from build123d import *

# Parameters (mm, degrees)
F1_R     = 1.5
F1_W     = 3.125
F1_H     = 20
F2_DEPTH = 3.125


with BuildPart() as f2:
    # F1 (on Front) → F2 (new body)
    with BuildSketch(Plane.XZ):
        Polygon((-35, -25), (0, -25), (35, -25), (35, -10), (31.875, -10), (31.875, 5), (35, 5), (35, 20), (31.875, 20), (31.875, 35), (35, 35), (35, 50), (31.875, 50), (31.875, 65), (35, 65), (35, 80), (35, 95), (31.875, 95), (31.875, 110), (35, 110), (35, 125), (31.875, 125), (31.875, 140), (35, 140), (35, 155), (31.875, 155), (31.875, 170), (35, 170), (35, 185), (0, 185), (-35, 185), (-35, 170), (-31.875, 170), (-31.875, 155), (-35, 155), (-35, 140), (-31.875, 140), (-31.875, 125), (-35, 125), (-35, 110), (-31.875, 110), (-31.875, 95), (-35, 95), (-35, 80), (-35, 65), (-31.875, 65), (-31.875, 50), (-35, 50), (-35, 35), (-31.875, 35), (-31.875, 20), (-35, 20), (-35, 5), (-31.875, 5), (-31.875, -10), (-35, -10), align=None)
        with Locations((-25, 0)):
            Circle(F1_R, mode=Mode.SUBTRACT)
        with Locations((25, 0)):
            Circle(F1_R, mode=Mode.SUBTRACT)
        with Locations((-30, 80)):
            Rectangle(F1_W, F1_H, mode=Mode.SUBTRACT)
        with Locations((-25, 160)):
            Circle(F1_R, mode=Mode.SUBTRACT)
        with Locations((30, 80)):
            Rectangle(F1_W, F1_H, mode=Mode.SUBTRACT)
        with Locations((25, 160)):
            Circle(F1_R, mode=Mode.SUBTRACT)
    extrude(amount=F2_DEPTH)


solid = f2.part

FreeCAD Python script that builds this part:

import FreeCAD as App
import Part
import Sketcher
from FreeCAD import Vector
Q = App.Units.Quantity

doc = App.newDocument("Part")
body = doc.addObject("PartDesign::Body", "Body")

# Sketch on XZ plane
sketch1 = body.newObject("Sketcher::SketchObject", "Sketch")
sketch1.AttachmentSupport = (doc.getObject("XZ_Plane"), [""])
sketch1.MapMode = "FlatFace"
sketch1.addGeometry(Part.LineSegment(Vector(-35, -25, 0), Vector(35, -25, 0)), False)
sketch1.addGeometry(Part.LineSegment(Vector(35, -25, 0), Vector(35, -10, 0)), False)
sketch1.addGeometry(Part.LineSegment(Vector(35, -10, 0), Vector(31.9, -10, 0)), False)
sketch1.addGeometry(Part.LineSegment(Vector(31.9, -10, 0), Vector(31.9, 5, 0)), False)
sketch1.addGeometry(Part.LineSegment(Vector(31.9, 5, 0), Vector(35, 5, 0)), False)
sketch1.addGeometry(Part.LineSegment(Vector(35, 5, 0), Vector(35, 20, 0)), False)
sketch1.addGeometry(Part.LineSegment(Vector(35, 20, 0), Vector(31.9, 20, 0)), False)
sketch1.addGeometry(Part.LineSegment(Vector(31.9, 20, 0), Vector(31.9, 35, 0)), False)
sketch1.addGeometry(Part.LineSegment(Vector(31.9, 35, 0), Vector(35, 35, 0)), False)
sketch1.addGeometry(Part.LineSegment(Vector(35, 35, 0), Vector(35, 50, 0)), False)
sketch1.addGeometry(Part.LineSegment(Vector(35, 50, 0), Vector(31.9, 50, 0)), False)
sketch1.addGeometry(Part.LineSegment(Vector(31.9, 50, 0), Vector(31.9, 65, 0)), False)
sketch1.addGeometry(Part.LineSegment(Vector(31.9, 65, 0), Vector(35, 65, 0)), False)
sketch1.addGeometry(Part.LineSegment(Vector(35, 65, 0), Vector(35, 95, 0)), False)
sketch1.addGeometry(Part.LineSegment(Vector(35, 95, 0), Vector(31.9, 95, 0)), False)
sketch1.addGeometry(Part.LineSegment(Vector(31.9, 95, 0), Vector(31.9, 110, 0)), False)
sketch1.addGeometry(Part.LineSegment(Vector(31.9, 110, 0), Vector(35, 110, 0)), False)
sketch1.addGeometry(Part.LineSegment(Vector(35, 110, 0), Vector(35, 125, 0)), False)
sketch1.addGeometry(Part.LineSegment(Vector(35, 125, 0), Vector(31.9, 125, 0)), False)
sketch1.addGeometry(Part.LineSegment(Vector(31.9, 125, 0), Vector(31.9, 140, 0)), False)
sketch1.addGeometry(Part.LineSegment(Vector(31.9, 140, 0), Vector(35, 140, 0)), False)
sketch1.addGeometry(Part.LineSegment(Vector(35, 140, 0), Vector(35, 155, 0)), False)
sketch1.addGeometry(Part.LineSegment(Vector(35, 155, 0), Vector(31.9, 155, 0)), False)
sketch1.addGeometry(Part.LineSegment(Vector(31.9, 155, 0), Vector(31.9, 170, 0)), False)
sketch1.addGeometry(Part.LineSegment(Vector(31.9, 170, 0), Vector(35, 170, 0)), False)
sketch1.addGeometry(Part.LineSegment(Vector(35, 170, 0), Vector(35, 185, 0)), False)
sketch1.addGeometry(Part.LineSegment(Vector(35, 185, 0), Vector(-35, 185, 0)), False)
sketch1.addGeometry(Part.LineSegment(Vector(-35, 185, 0), Vector(-35, 170, 0)), False)
sketch1.addGeometry(Part.LineSegment(Vector(-35, 170, 0), Vector(-31.9, 170, 0)), False)
sketch1.addGeometry(Part.LineSegment(Vector(-31.9, 170, 0), Vector(-31.9, 155, 0)), False)
sketch1.addGeometry(Part.LineSegment(Vector(-31.9, 155, 0), Vector(-35, 155, 0)), False)
sketch1.addGeometry(Part.LineSegment(Vector(-35, 155, 0), Vector(-35, 140, 0)), False)
sketch1.addGeometry(Part.LineSegment(Vector(-35, 140, 0), Vector(-31.9, 140, 0)), False)
sketch1.addGeometry(Part.LineSegment(Vector(-31.9, 140, 0), Vector(-31.9, 125, 0)), False)
sketch1.addGeometry(Part.LineSegment(Vector(-31.9, 125, 0), Vector(-35, 125, 0)), False)
sketch1.addGeometry(Part.LineSegment(Vector(-35, 125, 0), Vector(-35, 110, 0)), False)
sketch1.addGeometry(Part.LineSegment(Vector(-35, 110, 0), Vector(-31.9, 110, 0)), False)
sketch1.addGeometry(Part.LineSegment(Vector(-31.9, 110, 0), Vector(-31.9, 95, 0)), False)
sketch1.addGeometry(Part.LineSegment(Vector(-31.9, 95, 0), Vector(-35, 95, 0)), False)
sketch1.addGeometry(Part.LineSegment(Vector(-35, 95, 0), Vector(-35, 65, 0)), False)
sketch1.addGeometry(Part.LineSegment(Vector(-35, 65, 0), Vector(-31.9, 65, 0)), False)
sketch1.addGeometry(Part.LineSegment(Vector(-31.9, 65, 0), Vector(-31.9, 50, 0)), False)
sketch1.addGeometry(Part.LineSegment(Vector(-31.9, 50, 0), Vector(-35, 50, 0)), False)
sketch1.addGeometry(Part.LineSegment(Vector(-35, 50, 0), Vector(-35, 35, 0)), False)
sketch1.addGeometry(Part.LineSegment(Vector(-35, 35, 0), Vector(-31.9, 35, 0)), False)
sketch1.addGeometry(Part.LineSegment(Vector(-31.9, 35, 0), Vector(-31.9, 20, 0)), False)
sketch1.addGeometry(Part.LineSegment(Vector(-31.9, 20, 0), Vector(-35, 20, 0)), False)
sketch1.addGeometry(Part.LineSegment(Vector(-35, 20, 0), Vector(-35, 5, 0)), False)
sketch1.addGeometry(Part.LineSegment(Vector(-35, 5, 0), Vector(-31.9, 5, 0)), False)
sketch1.addGeometry(Part.LineSegment(Vector(-31.9, 5, 0), Vector(-31.9, -10, 0)), False)
sketch1.addGeometry(Part.LineSegment(Vector(-31.9, -10, 0), Vector(-35, -10, 0)), False)
sketch1.addGeometry(Part.LineSegment(Vector(-35, -10, 0), Vector(-35, -25, 0)), False)
sketch1.addGeometry(Part.Circle(Vector(-25, 0, 0), Vector(0, 0, 1), 1.5), False)
sketch1.addGeometry(Part.Circle(Vector(25, 0, 0), Vector(0, 0, 1), 1.5), False)
sketch1.addGeometry(Part.LineSegment(Vector(-28.4, 70, 0), Vector(-31.6, 70, 0)), False)
sketch1.addGeometry(Part.LineSegment(Vector(-31.6, 70, 0), Vector(-31.6, 90, 0)), False)
sketch1.addGeometry(Part.LineSegment(Vector(-31.6, 90, 0), Vector(-28.4, 90, 0)), False)
sketch1.addGeometry(Part.LineSegment(Vector(-28.4, 90, 0), Vector(-28.4, 70, 0)), False)
sketch1.addGeometry(Part.Circle(Vector(-25, 160, 0), Vector(0, 0, 1), 1.5), False)
sketch1.addGeometry(Part.LineSegment(Vector(31.6, 70, 0), Vector(28.4, 70, 0)), False)
sketch1.addGeometry(Part.LineSegment(Vector(28.4, 70, 0), Vector(28.4, 90, 0)), False)
sketch1.addGeometry(Part.LineSegment(Vector(28.4, 90, 0), Vector(31.6, 90, 0)), False)
sketch1.addGeometry(Part.LineSegment(Vector(31.6, 90, 0), Vector(31.6, 70, 0)), False)
sketch1.addGeometry(Part.Circle(Vector(25, 160, 0), Vector(0, 0, 1), 1.5), False)
sketch1.addConstraint(Sketcher.Constraint("Coincident", 0, 2, 1, 1))
sketch1.addConstraint(Sketcher.Constraint("Coincident", 1, 2, 2, 1))
sketch1.addConstraint(Sketcher.Constraint("Coincident", 2, 2, 3, 1))
sketch1.addConstraint(Sketcher.Constraint("Coincident", 3, 2, 4, 1))
sketch1.addConstraint(Sketcher.Constraint("Coincident", 4, 2, 5, 1))
sketch1.addConstraint(Sketcher.Constraint("Coincident", 5, 2, 6, 1))
sketch1.addConstraint(Sketcher.Constraint("Coincident", 6, 2, 7, 1))
sketch1.addConstraint(Sketcher.Constraint("Coincident", 7, 2, 8, 1))
sketch1.addConstraint(Sketcher.Constraint("Coincident", 8, 2, 9, 1))
sketch1.addConstraint(Sketcher.Constraint("Coincident", 9, 2, 10, 1))
sketch1.addConstraint(Sketcher.Constraint("Coincident", 10, 2, 11, 1))
sketch1.addConstraint(Sketcher.Constraint("Coincident", 11, 2, 12, 1))
sketch1.addConstraint(Sketcher.Constraint("Coincident", 12, 2, 13, 1))
sketch1.addConstraint(Sketcher.Constraint("Coincident", 13, 2, 14, 1))
sketch1.addConstraint(Sketcher.Constraint("Coincident", 14, 2, 15, 1))
sketch1.addConstraint(Sketcher.Constraint("Coincident", 15, 2, 16, 1))
sketch1.addConstraint(Sketcher.Constraint("Coincident", 16, 2, 17, 1))
sketch1.addConstraint(Sketcher.Constraint("Coincident", 17, 2, 18, 1))
sketch1.addConstraint(Sketcher.Constraint("Coincident", 18, 2, 19, 1))
sketch1.addConstraint(Sketcher.Constraint("Coincident", 19, 2, 20, 1))
sketch1.addConstraint(Sketcher.Constraint("Coincident", 20, 2, 21, 1))
sketch1.addConstraint(Sketcher.Constraint("Coincident", 21, 2, 22, 1))
sketch1.addConstraint(Sketcher.Constraint("Coincident", 22, 2, 23, 1))
sketch1.addConstraint(Sketcher.Constraint("Coincident", 23, 2, 24, 1))
sketch1.addConstraint(Sketcher.Constraint("Coincident", 24, 2, 25, 1))
sketch1.addConstraint(Sketcher.Constraint("Coincident", 25, 2, 26, 1))
sketch1.addConstraint(Sketcher.Constraint("Coincident", 26, 2, 27, 1))
sketch1.addConstraint(Sketcher.Constraint("Coincident", 27, 2, 28, 1))
sketch1.addConstraint(Sketcher.Constraint("Coincident", 28, 2, 29, 1))
sketch1.addConstraint(Sketcher.Constraint("Coincident", 29, 2, 30, 1))
sketch1.addConstraint(Sketcher.Constraint("Coincident", 30, 2, 31, 1))
sketch1.addConstraint(Sketcher.Constraint("Coincident", 31, 2, 32, 1))
sketch1.addConstraint(Sketcher.Constraint("Coincident", 32, 2, 33, 1))
sketch1.addConstraint(Sketcher.Constraint("Coincident", 33, 2, 34, 1))
sketch1.addConstraint(Sketcher.Constraint("Coincident", 34, 2, 35, 1))
sketch1.addConstraint(Sketcher.Constraint("Coincident", 35, 2, 36, 1))
sketch1.addConstraint(Sketcher.Constraint("Coincident", 36, 2, 37, 1))
sketch1.addConstraint(Sketcher.Constraint("Coincident", 37, 2, 38, 1))
sketch1.addConstraint(Sketcher.Constraint("Coincident", 38, 2, 39, 1))
sketch1.addConstraint(Sketcher.Constraint("Coincident", 39, 2, 40, 1))
sketch1.addConstraint(Sketcher.Constraint("Coincident", 40, 2, 41, 1))
sketch1.addConstraint(Sketcher.Constraint("Coincident", 41, 2, 42, 1))
sketch1.addConstraint(Sketcher.Constraint("Coincident", 42, 2, 43, 1))
sketch1.addConstraint(Sketcher.Constraint("Coincident", 43, 2, 44, 1))
sketch1.addConstraint(Sketcher.Constraint("Coincident", 44, 2, 45, 1))
sketch1.addConstraint(Sketcher.Constraint("Coincident", 45, 2, 46, 1))
sketch1.addConstraint(Sketcher.Constraint("Coincident", 46, 2, 47, 1))
sketch1.addConstraint(Sketcher.Constraint("Coincident", 47, 2, 48, 1))
sketch1.addConstraint(Sketcher.Constraint("Coincident", 48, 2, 49, 1))
sketch1.addConstraint(Sketcher.Constraint("Coincident", 49, 2, 50, 1))
sketch1.addConstraint(Sketcher.Constraint("Coincident", 50, 2, 51, 1))
sketch1.addConstraint(Sketcher.Constraint("Coincident", 51, 2, 0, 1))
sketch1.addConstraint(Sketcher.Constraint("Coincident", 54, 2, 55, 1))
sketch1.addConstraint(Sketcher.Constraint("Coincident", 55, 2, 56, 1))
sketch1.addConstraint(Sketcher.Constraint("Coincident", 56, 2, 57, 1))
sketch1.addConstraint(Sketcher.Constraint("Coincident", 57, 2, 54, 1))
sketch1.addConstraint(Sketcher.Constraint("Coincident", 59, 2, 60, 1))
sketch1.addConstraint(Sketcher.Constraint("Coincident", 60, 2, 61, 1))
sketch1.addConstraint(Sketcher.Constraint("Coincident", 61, 2, 62, 1))
sketch1.addConstraint(Sketcher.Constraint("Coincident", 62, 2, 59, 1))
sketch1.addConstraint(Sketcher.Constraint("Horizontal", 0))
sketch1.addConstraint(Sketcher.Constraint("Vertical", 1))
sketch1.addConstraint(Sketcher.Constraint("Horizontal", 2))
sketch1.addConstraint(Sketcher.Constraint("Vertical", 3))
sketch1.addConstraint(Sketcher.Constraint("Horizontal", 4))
sketch1.addConstraint(Sketcher.Constraint("Vertical", 5))
sketch1.addConstraint(Sketcher.Constraint("Horizontal", 6))
sketch1.addConstraint(Sketcher.Constraint("Vertical", 7))
sketch1.addConstraint(Sketcher.Constraint("Horizontal", 8))
sketch1.addConstraint(Sketcher.Constraint("Vertical", 9))
sketch1.addConstraint(Sketcher.Constraint("Horizontal", 10))
sketch1.addConstraint(Sketcher.Constraint("Vertical", 11))
sketch1.addConstraint(Sketcher.Constraint("Horizontal", 12))
sketch1.addConstraint(Sketcher.Constraint("Vertical", 13))
sketch1.addConstraint(Sketcher.Constraint("Horizontal", 14))
sketch1.addConstraint(Sketcher.Constraint("Vertical", 15))
sketch1.addConstraint(Sketcher.Constraint("Horizontal", 16))
sketch1.addConstraint(Sketcher.Constraint("Vertical", 17))
sketch1.addConstraint(Sketcher.Constraint("Horizontal", 18))
sketch1.addConstraint(Sketcher.Constraint("Vertical", 19))
sketch1.addConstraint(Sketcher.Constraint("Horizontal", 20))
sketch1.addConstraint(Sketcher.Constraint("Vertical", 21))
sketch1.addConstraint(Sketcher.Constraint("Horizontal", 22))
sketch1.addConstraint(Sketcher.Constraint("Vertical", 23))
sketch1.addConstraint(Sketcher.Constraint("Horizontal", 24))
sketch1.addConstraint(Sketcher.Constraint("Vertical", 25))
sketch1.addConstraint(Sketcher.Constraint("Horizontal", 26))
sketch1.addConstraint(Sketcher.Constraint("Vertical", 27))
sketch1.addConstraint(Sketcher.Constraint("Horizontal", 28))
sketch1.addConstraint(Sketcher.Constraint("Vertical", 29))
sketch1.addConstraint(Sketcher.Constraint("Horizontal", 30))
sketch1.addConstraint(Sketcher.Constraint("Vertical", 31))
sketch1.addConstraint(Sketcher.Constraint("Horizontal", 32))
sketch1.addConstraint(Sketcher.Constraint("Vertical", 33))
sketch1.addConstraint(Sketcher.Constraint("Horizontal", 34))
sketch1.addConstraint(Sketcher.Constraint("Vertical", 35))
sketch1.addConstraint(Sketcher.Constraint("Horizontal", 36))
sketch1.addConstraint(Sketcher.Constraint("Vertical", 37))
sketch1.addConstraint(Sketcher.Constraint("Horizontal", 38))
sketch1.addConstraint(Sketcher.Constraint("Vertical", 39))
sketch1.addConstraint(Sketcher.Constraint("Horizontal", 40))
sketch1.addConstraint(Sketcher.Constraint("Vertical", 41))
sketch1.addConstraint(Sketcher.Constraint("Horizontal", 42))
sketch1.addConstraint(Sketcher.Constraint("Vertical", 43))
sketch1.addConstraint(Sketcher.Constraint("Horizontal", 44))
sketch1.addConstraint(Sketcher.Constraint("Vertical", 45))
sketch1.addConstraint(Sketcher.Constraint("Horizontal", 46))
sketch1.addConstraint(Sketcher.Constraint("Vertical", 47))
sketch1.addConstraint(Sketcher.Constraint("Horizontal", 48))
sketch1.addConstraint(Sketcher.Constraint("Vertical", 49))
sketch1.addConstraint(Sketcher.Constraint("Horizontal", 50))
sketch1.addConstraint(Sketcher.Constraint("Vertical", 51))
sketch1.addConstraint(Sketcher.Constraint("Horizontal", 54))
sketch1.addConstraint(Sketcher.Constraint("Vertical", 55))
sketch1.addConstraint(Sketcher.Constraint("Horizontal", 56))
sketch1.addConstraint(Sketcher.Constraint("Vertical", 57))
sketch1.addConstraint(Sketcher.Constraint("Horizontal", 59))
sketch1.addConstraint(Sketcher.Constraint("Vertical", 60))
sketch1.addConstraint(Sketcher.Constraint("Horizontal", 61))
sketch1.addConstraint(Sketcher.Constraint("Vertical", 62))
sketch1.addConstraint(Sketcher.Constraint("Equal", 52, 53))
sketch1.addConstraint(Sketcher.Constraint("Equal", 53, 58))
sketch1.addConstraint(Sketcher.Constraint("Equal", 58, 63))
sketch1.addConstraint(Sketcher.Constraint("Symmetric", 52, 3, 53, 3, -1, 1))
sketch1.addConstraint(Sketcher.Constraint("Symmetric", 58, 3, 63, 3, -2))
sketch1.addConstraint(Sketcher.Constraint("Symmetric", 24, 2, 27, 2, -2))
sketch1.addConstraint(Sketcher.Constraint("Symmetric", 22, 2, 29, 2, -2))
sketch1.addConstraint(Sketcher.Constraint("Symmetric", 20, 2, 31, 2, -2))
sketch1.addConstraint(Sketcher.Constraint("Symmetric", 18, 2, 33, 2, -2))
sketch1.addConstraint(Sketcher.Constraint("Symmetric", 16, 2, 35, 2, -2))
sketch1.addConstraint(Sketcher.Constraint("Symmetric", 14, 2, 37, 2, -2))
sketch1.addConstraint(Sketcher.Constraint("Symmetric", 12, 2, 39, 2, -2))
sketch1.addConstraint(Sketcher.Constraint("Symmetric", 10, 2, 41, 2, -2))
sketch1.addConstraint(Sketcher.Constraint("Symmetric", 8, 2, 43, 2, -2))
sketch1.addConstraint(Sketcher.Constraint("Symmetric", 6, 2, 45, 2, -2))
sketch1.addConstraint(Sketcher.Constraint("Symmetric", 4, 2, 47, 2, -2))
sketch1.addConstraint(Sketcher.Constraint("Symmetric", 2, 2, 49, 2, -2))
sketch1.addConstraint(Sketcher.Constraint("Symmetric", 57, 2, 59, 2, -2))
sketch1.addConstraint(Sketcher.Constraint("Symmetric", 55, 2, 61, 2, -2))
sketch1.addConstraint(Sketcher.Constraint("PointOnObject", 52, 3, -1))
sketch1.addConstraint(Sketcher.Constraint("Vertical", 52, 3, 58, 3))
sketch1.addConstraint(Sketcher.Constraint("Vertical", 1, 2, 4, 2))
sketch1.addConstraint(Sketcher.Constraint("Vertical", 3, 2, 6, 2))
sketch1.addConstraint(Sketcher.Constraint("Vertical", 5, 2, 8, 2))
sketch1.addConstraint(Sketcher.Constraint("Vertical", 7, 2, 10, 2))
sketch1.addConstraint(Sketcher.Constraint("Vertical", 9, 2, 12, 2))
sketch1.addConstraint(Sketcher.Constraint("Vertical", 11, 2, 14, 2))
sketch1.addConstraint(Sketcher.Constraint("Vertical", 13, 2, 16, 2))
sketch1.addConstraint(Sketcher.Constraint("Vertical", 15, 2, 18, 2))
sketch1.addConstraint(Sketcher.Constraint("Vertical", 17, 2, 20, 2))
sketch1.addConstraint(Sketcher.Constraint("Vertical", 19, 2, 22, 2))
sketch1.addConstraint(Sketcher.Constraint("Vertical", 21, 2, 24, 2))
sketch1.addConstraint(Sketcher.Constraint("Vertical", 47, 2, 50, 2))
sketch1.addConstraint(Sketcher.Constraint("Equal", 50, 54))
sketch1.addConstraint(Sketcher.Constraint("Equal", 1, 3))
sketch1.addConstraint(Sketcher.Constraint("Equal", 3, 5))
sketch1.addConstraint(Sketcher.Constraint("Equal", 5, 7))
sketch1.addConstraint(Sketcher.Constraint("Equal", 7, 9))
sketch1.addConstraint(Sketcher.Constraint("Equal", 9, 11))
sketch1.addConstraint(Sketcher.Constraint("Equal", 11, 15))
sketch1.addConstraint(Sketcher.Constraint("Equal", 15, 17))
sketch1.addConstraint(Sketcher.Constraint("Equal", 17, 19))
sketch1.addConstraint(Sketcher.Constraint("Equal", 19, 21))
sketch1.addConstraint(Sketcher.Constraint("Equal", 21, 23))
sketch1.addConstraint(Sketcher.Constraint("Equal", 23, 25))
sketch1.addConstraint(Sketcher.Constraint("Diameter", 52, Q("3 mm")))
sketch1.addConstraint(Sketcher.Constraint("DistanceX", 0, 1, 0, 2, Q("70 mm")))
sketch1.addConstraint(Sketcher.Constraint("DistanceY", 1, 1, 1, 2, Q("15 mm")))
sketch1.addConstraint(Sketcher.Constraint("DistanceY", 13, 1, 13, 2, Q("30 mm")))
sketch1.addConstraint(Sketcher.Constraint("DistanceY", 55, 1, 55, 2, Q("20 mm")))
sketch1.addConstraint(Sketcher.Constraint("DistanceX", 52, 3, -1, 1, Q("25 mm")))
sketch1.addConstraint(Sketcher.Constraint("DistanceY", -1, 1, 58, 3, Q("160 mm")))
sketch1.addConstraint(Sketcher.Constraint("DistanceY", 0, 2, -1, 1, Q("25 mm")))
sketch1.addConstraint(Sketcher.Constraint("DistanceY", -1, 1, 54, 2, Q("70 mm")))
sketch1.addConstraint(Sketcher.Constraint("DistanceX", 2, 2, 2, 1, Q("3.125 mm")))
sketch1.addConstraint(Sketcher.Constraint("DistanceX", 54, 2, -1, 1, Q("31.5625 mm")))
pad1 = body.newObject("PartDesign::Pad", "Pad")
pad1.Profile = sketch1
pad1.Length = 3.125

doc.recompute()
